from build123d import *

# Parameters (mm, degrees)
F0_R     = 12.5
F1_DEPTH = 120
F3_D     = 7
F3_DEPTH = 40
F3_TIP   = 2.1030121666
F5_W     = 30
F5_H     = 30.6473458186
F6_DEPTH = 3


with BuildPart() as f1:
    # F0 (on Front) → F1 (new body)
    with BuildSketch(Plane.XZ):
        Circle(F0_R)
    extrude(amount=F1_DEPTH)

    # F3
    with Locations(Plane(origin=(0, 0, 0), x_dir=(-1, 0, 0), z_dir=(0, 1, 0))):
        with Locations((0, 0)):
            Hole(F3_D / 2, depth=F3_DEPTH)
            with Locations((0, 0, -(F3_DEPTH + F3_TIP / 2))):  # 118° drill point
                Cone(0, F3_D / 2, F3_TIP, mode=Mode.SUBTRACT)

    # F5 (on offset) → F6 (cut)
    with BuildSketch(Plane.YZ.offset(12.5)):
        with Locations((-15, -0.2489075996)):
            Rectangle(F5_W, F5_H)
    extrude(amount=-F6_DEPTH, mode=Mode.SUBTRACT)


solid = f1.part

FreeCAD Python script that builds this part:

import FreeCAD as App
import Part
import Sketcher
Q = App.Units.Quantity


def add_polygon(sketch, points):
    """Adds a closed chain of lines whose ends are joined by coincident constraints."""
    first, n = sketch.GeometryCount, len(points)
    for a, b in zip(points, points[1:] + points[:1]):
        sketch.addGeometry(Part.LineSegment(App.Vector(*a, 0), App.Vector(*b, 0)), False)
    for i in range(n):
        sketch.addConstraint(Sketcher.Constraint("Coincident", first + i, 2, first + (i + 1) % n, 1))

doc = App.newDocument("Part")
body = doc.addObject("PartDesign::Body", "Body")

# Sketch on XZ plane
sketch1 = doc.addObject("Sketcher::SketchObject", "Sketch")
body.addObject(sketch1)
sketch1.AttachmentSupport = (doc.XZ_Plane, [""])
sketch1.MapMode = "FlatFace"
sketch1.addGeometry(Part.Circle(App.Vector(0, 0, 0), App.Vector(0, 0, 1), 12), False)
sketch1.addConstraint(Sketcher.Constraint("Coincident", 0, 3, -1, 1))
sketch1.addConstraint(Sketcher.Constraint("Diameter", 0, Q("25 mm")))
pad1 = doc.addObject("PartDesign::Pad", "Pad")
body.addObject(pad1)
pad1.Profile = sketch1
pad1.Length = 120

# Sketch on XZ plane
sketch2 = doc.addObject("Sketcher::SketchObject", "Sketch001")
body.addObject(sketch2)
sketch2.AttachmentSupport = (doc.XZ_Plane, [""])
sketch2.MapMode = "FlatFace"
sketch2.addGeometry(Part.Circle(App.Vector(0, 0, 0), App.Vector(0, 0, 1), 3.5), False)
sketch2.addConstraint(Sketcher.Constraint("Coincident", 0, 3, -1, 1))
sketch2.addConstraint(Sketcher.Constraint("Diameter", 0, Q("7 mm")))
doc.recompute()
hole = doc.addObject("PartDesign::Hole", "Hole")
body.addObject(hole)
hole.Profile = sketch2
hole.ThreadType = "None"
hole.Diameter = 7
hole.DepthType = "Dimension"
hole.Depth = 40
hole.DrillPoint = "Angled"
hole.DrillPointAngle = 118
hole.Reversed = True

# Sketch on YZ plane
sketch3 = doc.addObject("Sketcher::SketchObject", "Sketch002")
body.addObject(sketch3)
sketch3.AttachmentSupport = (doc.YZ_Plane, [""])
sketch3.MapMode = "FlatFace"
sketch3.AttachmentOffset = App.Placement(App.Vector(0, 0, 12.5), App.Rotation())
add_polygon(sketch3, [(-30, 15), (-30, -16), (0, -16), (0, 15)])  # lines 0-3
sketch3.addConstraint(Sketcher.Constraint("Vertical", 0))
sketch3.addConstraint(Sketcher.Constraint("Horizontal", 1))
sketch3.addConstraint(Sketcher.Constraint("Vertical", 2))
sketch3.addConstraint(Sketcher.Constraint("Horizontal", 3))
sketch3.addConstraint(Sketcher.Constraint("PointOnObject", 1, 2, -2))
sketch3.addConstraint(Sketcher.Constraint("DistanceX", 1, 1, 1, 2, Q("30 mm")))
sketch3.addConstraint(Sketcher.Constraint("DistanceY", 0, 2, 0, 1, Q("30.647346 mm")))
sketch3.addConstraint(Sketcher.Constraint("DistanceY", 0, 2, -1, 1, Q("15.572581 mm")))
pocket1 = doc.addObject("PartDesign::Pocket", "Pocket")
body.addObject(pocket1)
pocket1.Profile = sketch3
pocket1.Length = 3

doc.recompute()
